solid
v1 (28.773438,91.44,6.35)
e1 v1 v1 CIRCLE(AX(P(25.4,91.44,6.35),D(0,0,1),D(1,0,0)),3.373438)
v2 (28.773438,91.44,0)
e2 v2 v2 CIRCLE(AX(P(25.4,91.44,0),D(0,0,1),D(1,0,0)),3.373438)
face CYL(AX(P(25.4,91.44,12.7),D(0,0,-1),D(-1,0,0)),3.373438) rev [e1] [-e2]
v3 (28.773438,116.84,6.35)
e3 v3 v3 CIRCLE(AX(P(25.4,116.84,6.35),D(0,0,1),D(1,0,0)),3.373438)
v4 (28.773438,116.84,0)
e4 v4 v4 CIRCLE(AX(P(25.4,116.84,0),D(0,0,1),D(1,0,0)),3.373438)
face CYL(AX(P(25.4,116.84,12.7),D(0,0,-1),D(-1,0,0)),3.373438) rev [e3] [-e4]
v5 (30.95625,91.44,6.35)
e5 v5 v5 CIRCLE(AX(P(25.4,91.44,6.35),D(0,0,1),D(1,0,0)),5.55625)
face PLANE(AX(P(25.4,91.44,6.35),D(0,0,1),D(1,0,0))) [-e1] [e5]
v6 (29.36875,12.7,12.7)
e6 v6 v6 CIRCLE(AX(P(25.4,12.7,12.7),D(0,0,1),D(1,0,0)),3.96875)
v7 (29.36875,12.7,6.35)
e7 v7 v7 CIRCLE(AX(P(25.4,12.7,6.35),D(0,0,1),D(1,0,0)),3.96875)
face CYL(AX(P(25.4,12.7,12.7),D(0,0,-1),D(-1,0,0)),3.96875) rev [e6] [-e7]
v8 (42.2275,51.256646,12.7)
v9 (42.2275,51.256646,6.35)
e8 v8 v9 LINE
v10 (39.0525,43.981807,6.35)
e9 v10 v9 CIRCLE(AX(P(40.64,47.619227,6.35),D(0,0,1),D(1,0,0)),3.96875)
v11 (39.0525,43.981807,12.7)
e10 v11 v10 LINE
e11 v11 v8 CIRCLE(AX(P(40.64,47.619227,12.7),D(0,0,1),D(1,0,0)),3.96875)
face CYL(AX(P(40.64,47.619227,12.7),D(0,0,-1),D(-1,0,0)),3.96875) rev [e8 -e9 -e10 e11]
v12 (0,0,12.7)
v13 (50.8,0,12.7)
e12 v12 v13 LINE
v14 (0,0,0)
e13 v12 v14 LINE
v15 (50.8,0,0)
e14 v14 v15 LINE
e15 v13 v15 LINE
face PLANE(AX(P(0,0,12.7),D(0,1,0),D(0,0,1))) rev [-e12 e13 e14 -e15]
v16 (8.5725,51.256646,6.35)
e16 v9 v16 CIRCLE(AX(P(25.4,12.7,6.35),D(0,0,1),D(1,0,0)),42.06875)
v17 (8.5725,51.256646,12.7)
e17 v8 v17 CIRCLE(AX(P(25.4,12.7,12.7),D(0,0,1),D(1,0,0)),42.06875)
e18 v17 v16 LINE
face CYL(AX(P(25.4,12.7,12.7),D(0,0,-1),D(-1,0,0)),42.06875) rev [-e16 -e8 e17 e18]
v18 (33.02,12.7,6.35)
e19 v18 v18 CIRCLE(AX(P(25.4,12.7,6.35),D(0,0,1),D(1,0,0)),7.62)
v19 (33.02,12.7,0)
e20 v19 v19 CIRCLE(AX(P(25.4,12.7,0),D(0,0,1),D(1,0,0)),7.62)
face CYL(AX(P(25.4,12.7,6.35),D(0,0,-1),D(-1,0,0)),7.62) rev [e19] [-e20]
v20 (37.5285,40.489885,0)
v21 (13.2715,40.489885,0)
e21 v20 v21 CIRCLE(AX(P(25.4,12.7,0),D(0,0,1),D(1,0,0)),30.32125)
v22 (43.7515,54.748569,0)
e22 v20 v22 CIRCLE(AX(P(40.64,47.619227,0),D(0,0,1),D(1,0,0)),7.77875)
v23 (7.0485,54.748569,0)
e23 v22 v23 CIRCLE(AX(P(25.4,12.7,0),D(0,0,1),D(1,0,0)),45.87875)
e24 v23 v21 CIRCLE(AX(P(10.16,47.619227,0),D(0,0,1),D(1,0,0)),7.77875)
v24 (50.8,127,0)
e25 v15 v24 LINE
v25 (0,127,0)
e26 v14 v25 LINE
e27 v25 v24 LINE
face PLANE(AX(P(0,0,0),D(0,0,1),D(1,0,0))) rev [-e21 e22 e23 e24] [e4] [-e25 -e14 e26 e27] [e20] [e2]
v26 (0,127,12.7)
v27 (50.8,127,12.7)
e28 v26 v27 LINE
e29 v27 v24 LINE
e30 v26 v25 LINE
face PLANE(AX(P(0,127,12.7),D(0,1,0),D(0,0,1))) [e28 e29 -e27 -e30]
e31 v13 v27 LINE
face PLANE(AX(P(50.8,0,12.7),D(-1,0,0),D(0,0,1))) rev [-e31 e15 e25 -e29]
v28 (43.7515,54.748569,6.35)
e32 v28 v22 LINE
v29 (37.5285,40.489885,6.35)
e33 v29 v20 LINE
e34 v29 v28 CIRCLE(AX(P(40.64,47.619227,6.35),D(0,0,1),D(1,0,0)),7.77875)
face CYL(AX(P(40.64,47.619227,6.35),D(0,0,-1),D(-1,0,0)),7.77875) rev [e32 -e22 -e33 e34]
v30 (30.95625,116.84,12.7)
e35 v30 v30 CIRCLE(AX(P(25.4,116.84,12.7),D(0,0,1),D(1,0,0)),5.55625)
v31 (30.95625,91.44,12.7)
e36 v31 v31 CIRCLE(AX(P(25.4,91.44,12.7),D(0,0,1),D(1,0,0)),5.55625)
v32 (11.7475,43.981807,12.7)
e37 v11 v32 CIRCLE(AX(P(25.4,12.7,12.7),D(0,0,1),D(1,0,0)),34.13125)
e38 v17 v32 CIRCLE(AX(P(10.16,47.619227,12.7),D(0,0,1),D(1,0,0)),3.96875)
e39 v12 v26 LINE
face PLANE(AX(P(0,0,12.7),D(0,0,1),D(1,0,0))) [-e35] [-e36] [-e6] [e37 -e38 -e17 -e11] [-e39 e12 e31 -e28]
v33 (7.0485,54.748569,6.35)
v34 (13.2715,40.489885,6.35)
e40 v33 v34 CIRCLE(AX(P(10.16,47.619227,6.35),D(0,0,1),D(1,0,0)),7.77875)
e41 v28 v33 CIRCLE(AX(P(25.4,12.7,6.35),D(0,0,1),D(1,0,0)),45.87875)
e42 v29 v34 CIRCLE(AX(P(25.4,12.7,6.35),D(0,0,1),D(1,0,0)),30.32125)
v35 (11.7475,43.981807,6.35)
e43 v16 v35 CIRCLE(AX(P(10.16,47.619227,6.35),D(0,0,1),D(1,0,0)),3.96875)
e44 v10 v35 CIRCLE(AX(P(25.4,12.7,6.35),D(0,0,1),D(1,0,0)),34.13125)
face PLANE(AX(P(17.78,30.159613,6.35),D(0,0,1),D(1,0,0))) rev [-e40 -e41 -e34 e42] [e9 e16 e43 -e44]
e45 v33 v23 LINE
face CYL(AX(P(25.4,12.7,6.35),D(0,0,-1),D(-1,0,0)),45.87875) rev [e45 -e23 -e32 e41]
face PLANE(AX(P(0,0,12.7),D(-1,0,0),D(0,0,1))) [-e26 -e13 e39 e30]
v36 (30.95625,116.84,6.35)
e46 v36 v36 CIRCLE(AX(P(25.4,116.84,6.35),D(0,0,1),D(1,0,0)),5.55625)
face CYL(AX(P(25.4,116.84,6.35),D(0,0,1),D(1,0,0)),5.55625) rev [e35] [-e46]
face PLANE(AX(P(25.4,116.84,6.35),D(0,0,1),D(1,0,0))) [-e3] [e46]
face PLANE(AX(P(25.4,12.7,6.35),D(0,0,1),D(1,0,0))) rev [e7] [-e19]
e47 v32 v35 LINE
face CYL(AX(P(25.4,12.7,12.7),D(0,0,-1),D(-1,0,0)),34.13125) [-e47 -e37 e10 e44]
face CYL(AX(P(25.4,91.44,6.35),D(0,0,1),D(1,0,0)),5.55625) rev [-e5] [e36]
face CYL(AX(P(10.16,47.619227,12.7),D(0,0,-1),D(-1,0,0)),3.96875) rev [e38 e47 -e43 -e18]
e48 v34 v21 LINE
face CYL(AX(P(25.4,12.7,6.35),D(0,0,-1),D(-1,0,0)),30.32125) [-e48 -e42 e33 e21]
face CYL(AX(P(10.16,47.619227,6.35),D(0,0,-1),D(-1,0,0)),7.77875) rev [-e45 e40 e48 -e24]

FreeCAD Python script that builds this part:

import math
import FreeCAD as App
import Part
import Sketcher
from FreeCAD import Vector
Q = App.Units.Quantity


def add_polygon(sketch, points):
    """Adds a closed chain of lines whose ends are joined by coincident constraints."""
    first, n = sketch.GeometryCount, len(points)
    for a, b in zip(points, points[1:] + points[:1]):
        sketch.addGeometry(Part.LineSegment(App.Vector(*a, 0), App.Vector(*b, 0)), False)
    for i in range(n):
        sketch.addConstraint(Sketcher.Constraint("Coincident", first + i, 2, first + (i + 1) % n, 1))

doc = App.newDocument("Part")
body = doc.addObject("PartDesign::Body", "Body")

# Sketch on XY plane
sketch1 = body.newObject("Sketcher::SketchObject", "Sketch")
sketch1.AttachmentSupport = (doc.getObject("XY_Plane"), [""])
sketch1.MapMode = "FlatFace"
add_polygon(sketch1, [(0, 127), (0, 0), (50.8, 0), (50.8, 127)])  # lines 0-3
sketch1.addGeometry(Part.Circle(Vector(25.4, 12.7, 0), Vector(0, 0, 1), 4), False)  # 4
sketch1.addGeometry(Part.ArcOfCircle(Part.Circle(Vector(25.4, 12.7, 0), Vector(0, 0, 1), 42.1), math.radians(66), math.radians(114)), False)  # 5
sketch1.addGeometry(Part.ArcOfCircle(Part.Circle(Vector(40.6, 47.6, 0), Vector(0, 0, 1), 4), math.radians(-114), math.radians(66)), False)  # 6
sketch1.addGeometry(Part.ArcOfCircle(Part.Circle(Vector(25.4, 12.7, 0), Vector(0, 0, 1), 34.1), math.radians(66), math.radians(114)), False)  # 7
sketch1.addGeometry(Part.ArcOfCircle(Part.Circle(Vector(10.2, 47.6, 0), Vector(0, 0, 1), 4), math.radians(114), math.radians(294)), False)  # 8
sketch1.addGeometry(Part.Circle(Vector(25.4, 91.4, 0), Vector(0, 0, 1), 3.4), False)  # 9
sketch1.addGeometry(Part.Circle(Vector(25.4, 116.8, 0), Vector(0, 0, 1), 3.4), False)  # 10
sketch1.addConstraint(Sketcher.Constraint("Tangent", 5, 1, 6, 2))
sketch1.addConstraint(Sketcher.Constraint("Tangent", 6, 1, 7, 1))
sketch1.addConstraint(Sketcher.Constraint("Tangent", 7, 2, 8, 2))
sketch1.addConstraint(Sketcher.Constraint("Tangent", 8, 1, 5, 2))
sketch1.addConstraint(Sketcher.Constraint("Vertical", 0))
sketch1.addConstraint(Sketcher.Constraint("Horizontal", 1))
sketch1.addConstraint(Sketcher.Constraint("Vertical", 2))
sketch1.addConstraint(Sketcher.Constraint("Horizontal", 3))
sketch1.addConstraint(Sketcher.Constraint("Coincident", 0, 2, -1, 1))
sketch1.addConstraint(Sketcher.Constraint("Coincident", 5, 3, 4, 3))
sketch1.addConstraint(Sketcher.Constraint("Coincident", 7, 3, 4, 3))
sketch1.addConstraint(Sketcher.Constraint("Equal", 4, 6))
sketch1.addConstraint(Sketcher.Constraint("Equal", 9, 10))
sketch1.addConstraint(Sketcher.Constraint("Horizontal", 6, 3, 8, 3))
sketch1.addConstraint(Sketcher.Constraint("Vertical", 7, 3, 9, 3))
sketch1.addConstraint(Sketcher.Constraint("Vertical", 9, 3, 10, 3))
sketch1.addConstraint(Sketcher.Constraint("DistanceX", 1, 1, 1, 2, Q("2 in")))
sketch1.addConstraint(Sketcher.Constraint("DistanceY", 0, 2, 0, 1, Q("5 in")))
sketch1.addConstraint(Sketcher.Constraint("Diameter", 4, Q("0.3125 in")))
sketch1.addConstraint(Sketcher.Constraint("Diameter", 9, Q("0.265625 in")))
sketch1.addConstraint(Sketcher.Constraint("DistanceX", -1, 1, 4, 3, Q("1 in")))
sketch1.addConstraint(Sketcher.Constraint("Radius", 5, Q("1.65625 in")))
sketch1.addConstraint(Sketcher.Constraint("DistanceY", 9, 3, 10, 3, Q("1 in")))
sketch1.addConstraint(Sketcher.Constraint("DistanceY", -1, 1, 4, 3, Q("0.5 in")))
sketch1.addConstraint(Sketcher.Constraint("DistanceX", -1, 1, 6, 3, Q("1.6 in")))
sketch1.addConstraint(Sketcher.Constraint("DistanceY", -1, 1, 9, 3, Q("3.6 in")))
pad1 = body.newObject("PartDesign::Pad", "Pad")
pad1.Profile = sketch1
pad1.Length = Q("0.5 in")

# Sketch on XY plane
sketch2 = body.newObject("Sketcher::SketchObject", "Sketch001")
sketch2.AttachmentSupport = (doc.getObject("XY_Plane"), [""])
sketch2.MapMode = "FlatFace"
sketch2.addGeometry(Part.ArcOfCircle(Part.Circle(Vector(25.4, 12.7, 0), Vector(0, 0, 1), 30.3), math.radians(66), math.radians(114)), False)
sketch2.addGeometry(Part.ArcOfCircle(Part.Circle(Vector(40.6, 47.6, 0), Vector(0, 0, 1), 7.8), math.radians(-114), math.radians(66)), False)
sketch2.addGeometry(Part.ArcOfCircle(Part.Circle(Vector(25.4, 12.7, 0), Vector(0, 0, 1), 45.9), math.radians(66), math.radians(114)), False)
sketch2.addGeometry(Part.ArcOfCircle(Part.Circle(Vector(10.2, 47.6, 0), Vector(0, 0, 1), 7.8), math.radians(114), math.radians(294)), False)
sketch2.addGeometry(Part.ArcOfCircle(Part.Circle(Vector(25.4, 12.7, 0), Vector(0, 0, 1), 34.1), math.radians(66), math.radians(114)), False)
sketch2.addGeometry(Part.ArcOfCircle(Part.Circle(Vector(10.2, 47.6, 0), Vector(0, 0, 1), 4), math.radians(114), math.radians(294)), False)
sketch2.addGeometry(Part.ArcOfCircle(Part.Circle(Vector(25.4, 12.7, 0), Vector(0, 0, 1), 42.1), math.radians(66), math.radians(114)), False)
sketch2.addGeometry(Part.ArcOfCircle(Part.Circle(Vector(40.6, 47.6, 0), Vector(0, 0, 1), 4), math.radians(-114), math.radians(66)), False)
sketch2.addConstraint(Sketcher.Constraint("Tangent", 0, 1, 1, 1))
sketch2.addConstraint(Sketcher.Constraint("Tangent", 1, 2, 2, 1))
sketch2.addConstraint(Sketcher.Constraint("Tangent", 2, 2, 3, 1))
sketch2.addConstraint(Sketcher.Constraint("Tangent", 3, 2, 0, 2))
sketch2.addConstraint(Sketcher.Constraint("Tangent", 4, 2, 5, 2))
sketch2.addConstraint(Sketcher.Constraint("Tangent", 5, 1, 6, 2))
sketch2.addConstraint(Sketcher.Constraint("Tangent", 6, 1, 7, 2))
sketch2.addConstraint(Sketcher.Constraint("Tangent", 7, 1, 4, 1))
sketch2.addConstraint(Sketcher.Constraint("Coincident", 2, 3, 0, 3))
sketch2.addConstraint(Sketcher.Constraint("Coincident", 4, 3, 0, 3))
sketch2.addConstraint(Sketcher.Constraint("Coincident", 5, 3, 3, 3))
sketch2.addConstraint(Sketcher.Constraint("Coincident", 6, 3, 0, 3))
sketch2.addConstraint(Sketcher.Constraint("Horizontal", 1, 3, 3, 3))
sketch2.addConstraint(Sketcher.Constraint("Horizontal", 5, 3, 7, 3))
sketch2.addConstraint(Sketcher.Constraint("DistanceX", -1, 1, 0, 3, Q("1 in")))
sketch2.addConstraint(Sketcher.Constraint("Radius", 4, Q("1.34375 in")))
sketch2.addConstraint(Sketcher.Constraint("Radius", 5, Q("0.15625 in")))
sketch2.addConstraint(Sketcher.Constraint("DistanceY", -1, 1, 0, 3, Q("0.5 in")))
sketch2.addConstraint(Sketcher.Constraint("DistanceX", -1, 1, 1, 3, Q("1.6 in")))
sketch2.addConstraint(Sketcher.Constraint("DistanceX", 4, 2, 3, 2, Q("0.06 in")))
pocket1 = body.newObject("PartDesign::Pocket", "Pocket")
pocket1.Profile = sketch2
pocket1.Length = Q("0.25 in")
pocket1.Reversed = True

# Sketch on XY plane
sketch3 = body.newObject("Sketcher::SketchObject", "Sketch002")
sketch3.AttachmentSupport = (doc.getObject("XY_Plane"), [""])
sketch3.MapMode = "FlatFace"
sketch3.AttachmentOffset = App.Placement(Vector(0, 0, 0.5 * 25.4), App.Rotation())
sketch3.addGeometry(Part.Circle(Vector(25, 117, 0), Vector(0, 0, 1), 6), False)
sketch3.addGeometry(Part.Circle(Vector(25, 91, 0), Vector(0, 0, 1), 6), False)
sketch3.addConstraint(Sketcher.Constraint("Equal", 0, 1))
sketch3.addConstraint(Sketcher.Constraint("Vertical", 0, 3, 1, 3))
sketch3.addConstraint(Sketcher.Constraint("Diameter", 0, Q("0.4375 in")))
sketch3.addConstraint(Sketcher.Constraint("DistanceX", -1, 1, 0, 3, Q("1 in")))
sketch3.addConstraint(Sketcher.Constraint("DistanceY", 1, 3, 0, 3, Q("1 in")))
sketch3.addConstraint(Sketcher.Constraint("DistanceY", -1, 1, 0, 3, Q("4.6 in")))
pocket2 = body.newObject("PartDesign::Pocket", "Pocket001")
pocket2.Profile = sketch3
pocket2.Length = Q("0.25 in")

# Sketch on XY plane
sketch4 = body.newObject("Sketcher::SketchObject", "Sketch003")
sketch4.AttachmentSupport = (doc.getObject("XY_Plane"), [""])
sketch4.MapMode = "FlatFace"
sketch4.addGeometry(Part.Circle(Vector(25, 13, 0), Vector(0, 0, 1), 8), False)
sketch4.addConstraint(Sketcher.Constraint("Diameter", 0, Q("0.6 in")))
sketch4.addConstraint(Sketcher.Constraint("DistanceX", -1, 1, 0, 3, Q("1 in")))
sketch4.addConstraint(Sketcher.Constraint("DistanceY", -1, 1, 0, 3, Q("0.5 in")))
pocket3 = body.newObject("PartDesign::Pocket", "Pocket002")
pocket3.Profile = sketch4
pocket3.Length = Q("0.25 in")
pocket3.Reversed = True

doc.recompute()
